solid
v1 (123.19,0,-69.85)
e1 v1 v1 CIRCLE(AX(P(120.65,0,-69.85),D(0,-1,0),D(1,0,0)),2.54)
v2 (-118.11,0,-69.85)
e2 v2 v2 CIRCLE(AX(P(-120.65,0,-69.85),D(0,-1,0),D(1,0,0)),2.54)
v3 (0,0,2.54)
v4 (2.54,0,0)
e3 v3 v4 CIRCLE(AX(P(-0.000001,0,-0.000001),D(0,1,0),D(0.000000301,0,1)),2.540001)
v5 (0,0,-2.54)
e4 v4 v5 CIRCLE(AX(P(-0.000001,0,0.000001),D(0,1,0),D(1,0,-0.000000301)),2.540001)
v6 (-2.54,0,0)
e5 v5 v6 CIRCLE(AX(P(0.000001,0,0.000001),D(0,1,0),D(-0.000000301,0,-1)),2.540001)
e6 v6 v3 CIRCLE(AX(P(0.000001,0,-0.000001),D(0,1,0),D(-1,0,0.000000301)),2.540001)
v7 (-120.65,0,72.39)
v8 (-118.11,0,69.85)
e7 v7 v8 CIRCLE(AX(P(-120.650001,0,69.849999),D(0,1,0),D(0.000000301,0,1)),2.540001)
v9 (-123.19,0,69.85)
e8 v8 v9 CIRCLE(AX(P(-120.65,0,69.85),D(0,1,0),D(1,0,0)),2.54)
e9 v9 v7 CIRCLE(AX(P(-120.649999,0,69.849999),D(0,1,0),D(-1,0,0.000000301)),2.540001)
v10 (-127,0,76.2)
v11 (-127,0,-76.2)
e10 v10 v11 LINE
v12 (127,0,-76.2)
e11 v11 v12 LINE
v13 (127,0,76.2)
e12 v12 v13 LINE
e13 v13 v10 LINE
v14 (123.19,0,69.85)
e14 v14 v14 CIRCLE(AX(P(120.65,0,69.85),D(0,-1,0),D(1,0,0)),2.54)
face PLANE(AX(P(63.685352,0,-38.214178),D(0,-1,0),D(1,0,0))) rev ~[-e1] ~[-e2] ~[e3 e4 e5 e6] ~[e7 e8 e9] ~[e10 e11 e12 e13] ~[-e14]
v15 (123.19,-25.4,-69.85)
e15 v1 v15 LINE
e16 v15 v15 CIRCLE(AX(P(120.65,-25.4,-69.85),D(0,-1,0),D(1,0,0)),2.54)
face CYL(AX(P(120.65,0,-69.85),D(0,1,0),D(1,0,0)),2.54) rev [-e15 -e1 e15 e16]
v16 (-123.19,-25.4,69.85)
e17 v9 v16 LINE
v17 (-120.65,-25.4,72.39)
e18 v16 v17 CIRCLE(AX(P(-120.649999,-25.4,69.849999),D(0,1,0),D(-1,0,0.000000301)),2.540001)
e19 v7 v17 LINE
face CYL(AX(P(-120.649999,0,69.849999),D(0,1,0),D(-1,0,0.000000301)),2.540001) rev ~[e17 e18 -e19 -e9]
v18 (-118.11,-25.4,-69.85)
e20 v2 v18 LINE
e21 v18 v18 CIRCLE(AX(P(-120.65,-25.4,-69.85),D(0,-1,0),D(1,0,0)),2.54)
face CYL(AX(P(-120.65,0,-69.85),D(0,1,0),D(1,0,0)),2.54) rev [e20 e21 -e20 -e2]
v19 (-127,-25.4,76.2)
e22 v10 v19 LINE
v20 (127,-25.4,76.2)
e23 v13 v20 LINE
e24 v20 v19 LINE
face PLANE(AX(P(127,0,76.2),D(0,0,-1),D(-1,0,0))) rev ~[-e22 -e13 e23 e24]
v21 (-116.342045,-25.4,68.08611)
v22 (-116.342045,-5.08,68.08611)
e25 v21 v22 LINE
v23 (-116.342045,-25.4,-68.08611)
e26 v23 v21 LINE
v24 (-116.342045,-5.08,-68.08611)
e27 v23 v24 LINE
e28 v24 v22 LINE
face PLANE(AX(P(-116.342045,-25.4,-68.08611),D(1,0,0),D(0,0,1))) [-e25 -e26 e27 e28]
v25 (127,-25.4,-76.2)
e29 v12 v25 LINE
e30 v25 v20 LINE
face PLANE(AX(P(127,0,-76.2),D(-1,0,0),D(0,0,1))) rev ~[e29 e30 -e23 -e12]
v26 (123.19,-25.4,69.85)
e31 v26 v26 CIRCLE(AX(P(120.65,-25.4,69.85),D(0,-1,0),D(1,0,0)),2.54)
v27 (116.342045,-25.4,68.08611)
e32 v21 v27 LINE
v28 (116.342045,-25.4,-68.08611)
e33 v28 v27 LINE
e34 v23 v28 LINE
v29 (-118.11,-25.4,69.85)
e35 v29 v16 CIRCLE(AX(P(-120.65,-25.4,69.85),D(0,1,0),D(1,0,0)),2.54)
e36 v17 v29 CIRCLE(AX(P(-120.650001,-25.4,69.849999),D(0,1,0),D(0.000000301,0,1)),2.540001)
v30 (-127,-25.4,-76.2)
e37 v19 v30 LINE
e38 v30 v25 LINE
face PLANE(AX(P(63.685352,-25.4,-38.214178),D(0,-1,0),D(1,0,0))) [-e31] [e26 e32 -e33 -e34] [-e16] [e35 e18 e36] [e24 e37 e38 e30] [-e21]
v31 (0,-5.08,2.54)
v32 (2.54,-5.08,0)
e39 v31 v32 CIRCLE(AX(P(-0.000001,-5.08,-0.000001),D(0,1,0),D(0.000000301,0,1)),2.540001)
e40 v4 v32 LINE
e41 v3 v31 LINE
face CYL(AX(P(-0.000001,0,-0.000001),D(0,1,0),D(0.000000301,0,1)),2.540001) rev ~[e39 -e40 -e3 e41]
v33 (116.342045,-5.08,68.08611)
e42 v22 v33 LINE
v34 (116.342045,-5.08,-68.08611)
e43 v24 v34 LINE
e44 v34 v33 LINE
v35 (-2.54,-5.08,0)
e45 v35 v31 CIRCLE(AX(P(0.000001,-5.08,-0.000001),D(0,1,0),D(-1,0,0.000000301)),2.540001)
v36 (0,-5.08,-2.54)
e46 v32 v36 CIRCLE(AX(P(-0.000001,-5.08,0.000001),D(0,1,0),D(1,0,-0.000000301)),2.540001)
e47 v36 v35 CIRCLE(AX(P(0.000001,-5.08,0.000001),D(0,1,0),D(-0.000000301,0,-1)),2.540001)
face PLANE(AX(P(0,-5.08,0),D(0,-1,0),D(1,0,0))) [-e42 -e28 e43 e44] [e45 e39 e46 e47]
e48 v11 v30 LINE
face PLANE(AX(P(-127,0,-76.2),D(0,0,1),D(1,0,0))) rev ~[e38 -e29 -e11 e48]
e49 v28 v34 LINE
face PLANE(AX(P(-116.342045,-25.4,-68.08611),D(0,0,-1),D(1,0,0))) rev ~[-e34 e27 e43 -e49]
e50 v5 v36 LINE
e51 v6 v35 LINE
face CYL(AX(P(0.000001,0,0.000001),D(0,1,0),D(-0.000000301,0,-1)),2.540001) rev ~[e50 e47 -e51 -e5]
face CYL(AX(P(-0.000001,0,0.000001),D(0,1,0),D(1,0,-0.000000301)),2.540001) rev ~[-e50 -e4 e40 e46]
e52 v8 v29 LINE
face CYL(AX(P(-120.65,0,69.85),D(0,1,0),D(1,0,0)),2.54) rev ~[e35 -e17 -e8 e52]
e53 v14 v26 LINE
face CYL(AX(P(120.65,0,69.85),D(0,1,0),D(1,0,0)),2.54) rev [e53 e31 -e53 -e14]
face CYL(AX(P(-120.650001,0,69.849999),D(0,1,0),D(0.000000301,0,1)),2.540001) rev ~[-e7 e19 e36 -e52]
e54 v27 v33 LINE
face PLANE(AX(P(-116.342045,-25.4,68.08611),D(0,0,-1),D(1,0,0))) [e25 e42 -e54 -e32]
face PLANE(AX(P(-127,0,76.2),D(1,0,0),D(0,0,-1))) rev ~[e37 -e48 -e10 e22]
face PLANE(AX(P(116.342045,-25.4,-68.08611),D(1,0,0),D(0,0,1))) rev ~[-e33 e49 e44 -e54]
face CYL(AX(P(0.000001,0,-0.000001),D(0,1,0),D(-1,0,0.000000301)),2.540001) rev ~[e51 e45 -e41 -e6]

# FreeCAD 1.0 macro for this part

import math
import FreeCAD as App
import Part
import Sketcher
from FreeCAD import Vector
Q = App.Units.Quantity

doc = App.newDocument("Part")
params = doc.addObject("Spreadsheet::Sheet", "Params")
for row, (alias, value) in enumerate([
    ("sketch1_diameter", "0.2 in"),
    ("sketch1_width", "10 in"),
    ("sketch1_height", "6 in"),
    ("pad1_length", "1 in"),
    ("pocket1_length", "0.8 in"),
], start=1):
    params.set(f"A{row}", alias)
    params.set(f"B{row}", "=" + value)
    params.setAlias(f"B{row}", alias)

body = doc.addObject("PartDesign::Body", "Body")

sketch1 = body.newObject("Sketcher::SketchObject", "Sketch")
sketch1.AttachmentSupport = (doc.getObject("XZ_Plane"), [""])
sketch1.MapMode = "FlatFace"
sketch1.addGeometry([
    Part.LineSegment(Vector(127, -76.2, 0), Vector(127, 76.2, 0)),
    Part.LineSegment(Vector(127, 76.2, 0), Vector(-127, 76.2, 0)),
    Part.LineSegment(Vector(-127, 76.2, 0), Vector(-127, -76.2, 0)),
    Part.LineSegment(Vector(-127, -76.2, 0), Vector(127, -76.2, 0)),
    Part.ArcOfCircle(Part.Circle(Vector(-120.7, 69.8, 0), Vector(0, 0, 1), 2.5), math.radians(0), math.radians(90)),
    Part.ArcOfCircle(Part.Circle(Vector(-120.7, 69.8, 0), Vector(0, 0, 1), 2.5), math.radians(180), math.radians(360)),
    Part.ArcOfCircle(Part.Circle(Vector(-120.6, 69.8, 0), Vector(0, 0, 1), 2.5), math.radians(90), math.radians(180)),
    Part.ArcOfCircle(Part.Circle(Vector(0, 0, 0), Vector(0, 0, 1), 2.5), math.radians(0), math.radians(90)),
    Part.ArcOfCircle(Part.Circle(Vector(0, 0, 0), Vector(0, 0, 1), 2.5), math.radians(-90), math.radians(0)),
    Part.ArcOfCircle(Part.Circle(Vector(0, 0, 0), Vector(0, 0, 1), 2.5), math.radians(-180), math.radians(-90)),
    Part.ArcOfCircle(Part.Circle(Vector(0, 0, 0), Vector(0, 0, 1), 2.5), math.radians(90), math.radians(180)),
    Part.Circle(Vector(-120.7, -69.8, 0), Vector(0, 0, 1), 2.5),
    Part.Circle(Vector(120.7, -69.8, 0), Vector(0, 0, 1), 2.5),
    Part.Circle(Vector(120.7, 69.8, 0), Vector(0, 0, 1), 2.5),
], False)
sketch1.addConstraint([
    Sketcher.Constraint("Coincident", 0, 2, 1, 1),
    Sketcher.Constraint("Coincident", 1, 2, 2, 1),
    Sketcher.Constraint("Coincident", 2, 2, 3, 1),
    Sketcher.Constraint("Coincident", 3, 2, 0, 1),
    Sketcher.Constraint("Tangent", 4, 1, 5, 2),
    Sketcher.Constraint("Tangent", 5, 1, 6, 2),
    Sketcher.Constraint("Tangent", 6, 1, 4, 2),
    Sketcher.Constraint("Tangent", 7, 1, 8, 2),
    Sketcher.Constraint("Tangent", 8, 1, 9, 2),
    Sketcher.Constraint("Tangent", 9, 1, 10, 2),
    Sketcher.Constraint("Tangent", 10, 1, 7, 2),
    Sketcher.Constraint("Vertical", 0),
    Sketcher.Constraint("Horizontal", 1),
    Sketcher.Constraint("Vertical", 2),
    Sketcher.Constraint("Horizontal", 3),
    Sketcher.Constraint("Coincident", 7, 3, -1, 1),
    Sketcher.Constraint("Equal", 6, 7),
    Sketcher.Constraint("Equal", 7, 8),
    Sketcher.Constraint("Equal", 10, 11),
    Sketcher.Constraint("Equal", 11, 12),
    Sketcher.Constraint("Equal", 12, 13),
    Sketcher.Constraint("Symmetric", 4, 3, 12, 3, -1, 1),
    Sketcher.Constraint("Symmetric", 11, 3, 13, 3, -1, 1),
    Sketcher.Constraint("Symmetric", 0, 2, 2, 2, -1, 1),
    Sketcher.Constraint("Symmetric", 11, 3, 12, 3, -2),
    Sketcher.Constraint("PointOnObject", 7, 1, -1),
    Sketcher.Constraint("PointOnObject", 8, 1, -2),
    Sketcher.Constraint("PointOnObject", 9, 1, -1),
    Sketcher.Constraint("PointOnObject", 10, 1, -2),
    Sketcher.Constraint("Horizontal", 13, 3, 4, 1),
    Sketcher.Constraint("Horizontal", 4, 1, 5, 1),
    Sketcher.Constraint("Vertical", 11, 3, 6, 1),
    Sketcher.Constraint("Diameter", 11, Q("0.2 in")),
    Sketcher.Constraint("DistanceX", 1, 2, 1, 1, Q("10 in")),
    Sketcher.Constraint("DistanceY", 0, 1, 0, 2, Q("6 in")),
    Sketcher.Constraint("DistanceY", 11, 3, 4, 3, Q("5.5 in")),
    Sketcher.Constraint("DistanceX", 11, 3, 12, 3, Q("9.5 in")),
])
sketch1.setExpression("Constraints[32]", "Params.sketch1_diameter")
sketch1.setExpression("Constraints[33]", "Params.sketch1_width")
sketch1.setExpression("Constraints[34]", "Params.sketch1_height")
pad1 = body.newObject("PartDesign::Pad", "Pad")
pad1.Profile = sketch1
pad1.setExpression("Length", "Params.pad1_length")

sketch2 = body.newObject("Sketcher::SketchObject", "Sketch001")
sketch2.AttachmentSupport = (doc.getObject("XZ_Plane"), [""])
sketch2.MapMode = "FlatFace"
sketch2.AttachmentOffset = App.Placement(Vector(0, 0, 1 * 25.4), App.Rotation())
sketch2.addGeometry([
    Part.LineSegment(Vector(-116, 68, 0), Vector(-116, -68, 0)),
    Part.LineSegment(Vector(-116, -68, 0), Vector(116, -68, 0)),
    Part.LineSegment(Vector(116, -68, 0), Vector(116, 68, 0)),
    Part.LineSegment(Vector(116, 68, 0), Vector(-116, 68, 0)),
], False)
sketch2.addConstraint([
    Sketcher.Constraint("Coincident", 0, 2, 1, 1),
    Sketcher.Constraint("Coincident", 1, 2, 2, 1),
    Sketcher.Constraint("Coincident", 2, 2, 3, 1),
    Sketcher.Constraint("Coincident", 3, 2, 0, 1),
    Sketcher.Constraint("Vertical", 0),
    Sketcher.Constraint("Horizontal", 1),
    Sketcher.Constraint("Vertical", 2),
    Sketcher.Constraint("Horizontal", 3),
    Sketcher.Constraint("Symmetric", 0, 2, 2, 2, -1, 1),
    Sketcher.Constraint("DistanceX", 1, 1, 1, 2, 232.68409),
    Sketcher.Constraint("DistanceY", 0, 2, 0, 1, 136.17222),
])
pocket1 = body.newObject("PartDesign::Pocket", "Pocket")
pocket1.Profile = sketch2
pocket1.setExpression("Length", "Params.pocket1_length")

doc.recompute()
